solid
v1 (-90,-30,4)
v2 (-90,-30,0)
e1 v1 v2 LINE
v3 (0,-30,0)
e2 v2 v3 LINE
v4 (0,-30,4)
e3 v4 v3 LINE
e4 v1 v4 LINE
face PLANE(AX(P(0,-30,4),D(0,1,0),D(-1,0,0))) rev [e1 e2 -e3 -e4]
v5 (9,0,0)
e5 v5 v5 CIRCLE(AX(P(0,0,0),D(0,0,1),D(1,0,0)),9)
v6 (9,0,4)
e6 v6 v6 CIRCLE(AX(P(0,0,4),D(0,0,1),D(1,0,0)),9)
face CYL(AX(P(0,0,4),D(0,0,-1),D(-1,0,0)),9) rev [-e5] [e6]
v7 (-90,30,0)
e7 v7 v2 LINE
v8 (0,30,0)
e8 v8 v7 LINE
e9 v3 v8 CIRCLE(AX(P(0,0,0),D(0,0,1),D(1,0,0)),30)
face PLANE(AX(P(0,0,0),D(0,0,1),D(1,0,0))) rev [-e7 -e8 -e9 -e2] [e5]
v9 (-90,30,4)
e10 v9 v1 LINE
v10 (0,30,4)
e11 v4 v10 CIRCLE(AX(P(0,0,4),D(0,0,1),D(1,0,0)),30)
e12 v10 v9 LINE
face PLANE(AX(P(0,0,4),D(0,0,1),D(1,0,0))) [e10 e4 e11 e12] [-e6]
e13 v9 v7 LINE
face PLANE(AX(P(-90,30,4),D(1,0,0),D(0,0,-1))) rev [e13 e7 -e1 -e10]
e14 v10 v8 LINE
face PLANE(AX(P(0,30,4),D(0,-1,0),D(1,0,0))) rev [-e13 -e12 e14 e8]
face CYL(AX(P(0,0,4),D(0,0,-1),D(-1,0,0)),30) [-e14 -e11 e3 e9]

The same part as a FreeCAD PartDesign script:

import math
import FreeCAD as App
import Part
import Sketcher
from FreeCAD import Vector

doc = App.newDocument("Part")
body = doc.addObject("PartDesign::Body", "Body")

# Sketch on XY plane
sketch1 = body.newObject("Sketcher::SketchObject", "Sketch")
sketch1.AttachmentSupport = (doc.getObject("XY_Plane"), [""])
sketch1.MapMode = "FlatFace"
sketch1.addGeometry([
    Part.LineSegment(Vector(0, 30, 0), Vector(-90, 30, 0)),  # 0
    Part.LineSegment(Vector(-90, 30, 0), Vector(-90, -30, 0)),  # 1
    Part.LineSegment(Vector(-90, -30, 0), Vector(0, -30, 0)),  # 2
    Part.ArcOfCircle(Part.Circle(Vector(0, 0, 0), Vector(0, 0, 1), 30), math.radians(-90), math.radians(90)),  # 3
    Part.Circle(Vector(0, 0, 0), Vector(0, 0, 1), 9),  # 4
], False)
sketch1.addConstraint([
    Sketcher.Constraint("Coincident", 0, 2, 1, 1),
    Sketcher.Constraint("Coincident", 1, 2, 2, 1),
    Sketcher.Constraint("Tangent", 2, 2, 3, 1),
    Sketcher.Constraint("Tangent", 3, 2, 0, 1),
    Sketcher.Constraint("Horizontal", 0),
    Sketcher.Constraint("Vertical", 1),
    Sketcher.Constraint("Horizontal", 2),
    Sketcher.Constraint("Coincident", 3, 3, -1, 1),
    Sketcher.Constraint("Coincident", 4, 3, -1, 1),
    Sketcher.Constraint("Diameter", 4, 18.0),
    Sketcher.Constraint("Radius", 3, 30.0),
    Sketcher.Constraint("DistanceX", 0, 2, 0, 1, 90.0),
])
pad1 = body.newObject("PartDesign::Pad", "Pad")
pad1.Profile = sketch1
pad1.Length = 4

doc.recompute()
